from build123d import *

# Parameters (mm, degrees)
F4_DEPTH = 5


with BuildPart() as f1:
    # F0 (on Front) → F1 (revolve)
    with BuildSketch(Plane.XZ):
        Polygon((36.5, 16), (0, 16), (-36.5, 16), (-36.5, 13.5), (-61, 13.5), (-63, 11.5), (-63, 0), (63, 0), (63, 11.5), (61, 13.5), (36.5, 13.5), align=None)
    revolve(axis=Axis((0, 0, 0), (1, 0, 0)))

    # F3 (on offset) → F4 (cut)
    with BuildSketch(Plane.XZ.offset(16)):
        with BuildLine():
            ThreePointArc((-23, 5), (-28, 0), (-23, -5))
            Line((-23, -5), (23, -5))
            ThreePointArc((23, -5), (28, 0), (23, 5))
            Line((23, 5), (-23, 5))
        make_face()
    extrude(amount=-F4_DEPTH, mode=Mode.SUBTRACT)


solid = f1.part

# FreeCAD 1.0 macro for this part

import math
import FreeCAD as App
import Part
import Sketcher
Q = App.Units.Quantity


def add_polygon(sketch, points):
    """Adds a closed chain of lines whose ends are joined by coincident constraints."""
    first, n = sketch.GeometryCount, len(points)
    for a, b in zip(points, points[1:] + points[:1]):
        sketch.addGeometry(Part.LineSegment(App.Vector(*a, 0), App.Vector(*b, 0)), False)
    for i in range(n):
        sketch.addConstraint(Sketcher.Constraint("Coincident", first + i, 2, first + (i + 1) % n, 1))

doc = App.newDocument("Part")
body = doc.addObject("PartDesign::Body", "Body")

# Sketch on XZ plane
sketch1 = body.newObject("Sketcher::SketchObject", "Sketch")
sketch1.AttachmentSupport = (doc.getObject("XZ_Plane"), [""])
sketch1.MapMode = "FlatFace"
add_polygon(sketch1, [(36.5, 16), (-36.5, 16), (-36.5, 13.5), (-61, 13.5), (-63, 11.5), (-63, 0), (63, 0), (63, 11.5), (61, 13.5), (36.5, 13.5)])  # lines 0-9
sketch1.addConstraint([
    Sketcher.Constraint("Horizontal", 0),
    Sketcher.Constraint("Vertical", 1),
    Sketcher.Constraint("Horizontal", 2),
    Sketcher.Constraint("Vertical", 4),
    Sketcher.Constraint("Horizontal", 5),
    Sketcher.Constraint("Vertical", 6),
    Sketcher.Constraint("Horizontal", 8),
    Sketcher.Constraint("Vertical", 9),
    Sketcher.Constraint("Symmetric", 4, 2, 5, 2, -1, 1),
    Sketcher.Constraint("Symmetric", 2, 2, 7, 2, -2),
    Sketcher.Constraint("Perpendicular", 3, 7),
    Sketcher.Constraint("Horizontal", 3, 2, 6, 2),
    Sketcher.Constraint("Equal", 2, 8),
    Sketcher.Constraint("DistanceX", 0, 2, 0, 1, Q("73 mm")),
    Sketcher.Constraint("DistanceX", 5, 1, 5, 2, Q("126 mm")),
    Sketcher.Constraint("DistanceX", 2, 2, 2, 1, Q("24.5 mm")),
    Sketcher.Constraint("DistanceY", 1, 2, 1, 1, Q("2.5 mm")),
    Sketcher.Constraint("DistanceY", 4, 2, 4, 1, Q("11.5 mm")),
])
revolution = body.newObject("PartDesign::Revolution", "Revolution")
revolution.Profile = sketch1
revolution.ReferenceAxis = (sketch1, ["H_Axis"])
revolution.Angle = 360

# Sketch on XZ plane
sketch2 = body.newObject("Sketcher::SketchObject", "Sketch001")
sketch2.AttachmentSupport = (doc.getObject("XZ_Plane"), [""])
sketch2.MapMode = "FlatFace"
sketch2.AttachmentOffset = App.Placement(App.Vector(0, 0, 16), App.Rotation())
sketch2.addGeometry([
    Part.ArcOfCircle(Part.Circle(App.Vector(-23, 0, 0), App.Vector(0, 0, 1), 5), math.radians(90), math.radians(270)),
    Part.LineSegment(App.Vector(-23, -5, 0), App.Vector(23, -5, 0)),
    Part.ArcOfCircle(Part.Circle(App.Vector(23, 0, 0), App.Vector(0, 0, 1), 5), math.radians(-90), math.radians(90)),
    Part.LineSegment(App.Vector(23, 5, 0), App.Vector(-23, 5, 0)),
], False)
sketch2.addConstraint([
    Sketcher.Constraint("Tangent", 0, 2, 1, 1),
    Sketcher.Constraint("Tangent", 1, 2, 2, 1),
    Sketcher.Constraint("Tangent", 2, 2, 3, 1),
    Sketcher.Constraint("Tangent", 3, 2, 0, 1),
    Sketcher.Constraint("Horizontal", 1),
    Sketcher.Constraint("Horizontal", 3),
    Sketcher.Constraint("Symmetric", 0, 3, 2, 3, -1, 1),
    Sketcher.Constraint("Radius", 0, Q("5 mm")),
    Sketcher.Constraint("DistanceX", 1, 1, 1, 2, Q("46 mm")),
])
pocket1 = body.newObject("PartDesign::Pocket", "Pocket")
pocket1.Profile = sketch2
pocket1.Length = 5

doc.recompute()
